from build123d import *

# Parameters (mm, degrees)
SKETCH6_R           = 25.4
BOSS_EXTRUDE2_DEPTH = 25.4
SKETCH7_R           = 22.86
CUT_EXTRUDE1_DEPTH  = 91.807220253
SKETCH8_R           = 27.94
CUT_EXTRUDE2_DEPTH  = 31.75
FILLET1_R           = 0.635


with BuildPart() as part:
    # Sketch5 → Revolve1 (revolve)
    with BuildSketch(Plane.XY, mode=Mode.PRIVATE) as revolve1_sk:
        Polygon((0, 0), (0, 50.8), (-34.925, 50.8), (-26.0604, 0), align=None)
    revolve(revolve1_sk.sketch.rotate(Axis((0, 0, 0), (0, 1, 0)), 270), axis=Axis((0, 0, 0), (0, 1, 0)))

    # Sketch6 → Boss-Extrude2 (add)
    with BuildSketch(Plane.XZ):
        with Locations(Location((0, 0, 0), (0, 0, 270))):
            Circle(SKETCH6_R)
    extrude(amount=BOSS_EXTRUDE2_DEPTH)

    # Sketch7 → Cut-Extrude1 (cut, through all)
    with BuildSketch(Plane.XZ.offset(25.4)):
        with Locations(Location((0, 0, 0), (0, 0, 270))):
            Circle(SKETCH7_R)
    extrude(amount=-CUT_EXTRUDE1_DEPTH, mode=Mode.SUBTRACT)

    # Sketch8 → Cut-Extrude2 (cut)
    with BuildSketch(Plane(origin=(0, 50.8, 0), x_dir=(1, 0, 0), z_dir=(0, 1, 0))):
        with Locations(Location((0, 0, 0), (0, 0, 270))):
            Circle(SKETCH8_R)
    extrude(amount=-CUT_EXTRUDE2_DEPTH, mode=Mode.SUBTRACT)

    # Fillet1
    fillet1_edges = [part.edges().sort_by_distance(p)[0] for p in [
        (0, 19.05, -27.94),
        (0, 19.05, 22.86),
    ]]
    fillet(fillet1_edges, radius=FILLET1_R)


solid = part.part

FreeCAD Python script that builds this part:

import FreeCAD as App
import Part
import Sketcher

V = App.Vector
Q = App.Units.Quantity


def edges_at(feature, points):
    """Names of the edges that pass closest to the given points."""
    edges = feature.Shape.Edges
    near = lambda p: min(range(len(edges)), key=lambda i: edges[i].distToShape(Part.Vertex(*p))[0])
    return sorted({f"Edge{near(p) + 1}" for p in points})


def add_polygon(sketch, points):
    """Adds a closed chain of lines whose ends are joined by coincident constraints."""
    first, n = sketch.GeometryCount, len(points)
    for a, b in zip(points, points[1:] + points[:1]):
        sketch.addGeometry(Part.LineSegment(App.Vector(*a, 0), App.Vector(*b, 0)), False)
    for i in range(n):
        sketch.addConstraint(Sketcher.Constraint("Coincident", first + i, 2, first + (i + 1) % n, 1))

doc = App.newDocument("Part")
body = doc.addObject("PartDesign::Body", "Body")

sketch1 = doc.addObject("Sketcher::SketchObject", "Sketch")
body.addObject(sketch1)
sketch1.AttachmentSupport = (doc.XY_Plane, [""])
sketch1.MapMode = "FlatFace"
add_polygon(sketch1, [(0, 0), (0, 51), (-35, 51), (-26, 0)])
sketch1.addConstraint([
    Sketcher.Constraint("Vertical", 0),
    Sketcher.Constraint("Horizontal", 1),
    Sketcher.Constraint("Horizontal", 3),
    Sketcher.Constraint("Coincident", 3, 2, -1, 1),
    Sketcher.Constraint("DistanceY", 0, 1, 0, 2, Q("2 in")),
    Sketcher.Constraint("DistanceX", 1, 2, 1, 1, Q("1.375 in")),
    Sketcher.Constraint("DistanceX", 3, 1, 3, 2, Q("1.026 in")),
])
revolution = doc.addObject("PartDesign::Revolution", "Revolution")
body.addObject(revolution)
revolution.Profile = sketch1
revolution.ReferenceAxis = (sketch1, ["V_Axis"])
revolution.Angle = 360

sketch2 = doc.addObject("Sketcher::SketchObject", "Sketch001")
body.addObject(sketch2)
sketch2.AttachmentSupport = (doc.XZ_Plane, [""])
sketch2.MapMode = "FlatFace"
sketch2.addGeometry(Part.Circle(V(0, 0, 0), V(0, 0, 1), 25), False)
sketch2.addConstraint([
    Sketcher.Constraint("Coincident", 0, 3, -1, 1),
    Sketcher.Constraint("Diameter", 0, Q("2 in")),
])
pad1 = doc.addObject("PartDesign::Pad", "Pad")
body.addObject(pad1)
pad1.Profile = sketch2
pad1.Length = Q("1 in")

sketch3 = doc.addObject("Sketcher::SketchObject", "Sketch002")
body.addObject(sketch3)
sketch3.AttachmentSupport = (doc.XZ_Plane, [""])
sketch3.MapMode = "FlatFace"
sketch3.AttachmentOffset = App.Placement(V(0, 0, 1 * 25.4), App.Rotation())
sketch3.addGeometry(Part.Circle(V(0, 0, 0), V(0, 0, 1), 23), False)
sketch3.addConstraint([
    Sketcher.Constraint("Coincident", 0, 3, -1, 1),
    Sketcher.Constraint("Diameter", 0, Q("1.8 in")),
])
pocket1 = doc.addObject("PartDesign::Pocket", "Pocket")
body.addObject(pocket1)
pocket1.Profile = sketch3
pocket1.Type = "ThroughAll"

sketch4 = doc.addObject("Sketcher::SketchObject", "Sketch003")
body.addObject(sketch4)
sketch4.AttachmentSupport = (doc.XZ_Plane, [""])
sketch4.MapMode = "FlatFace"
sketch4.AttachmentOffset = App.Placement(V(0, 0, -2 * 25.4), App.Rotation())
sketch4.addGeometry(Part.Circle(V(0, 0, 0), V(0, 0, 1), 28), False)
sketch4.addConstraint([
    Sketcher.Constraint("Coincident", 0, 3, -1, 1),
    Sketcher.Constraint("Diameter", 0, Q("2.2 in")),
])
pocket2 = doc.addObject("PartDesign::Pocket", "Pocket001")
body.addObject(pocket2)
pocket2.Profile = sketch4
pocket2.Length = Q("1.25 in")
pocket2.Reversed = True
doc.recompute()

fillet = doc.addObject("PartDesign::Fillet", "Fillet")
body.addObject(fillet)
fillet.Base = (pocket2, edges_at(pocket2, [(0, 19.05, -27.94), (0, 19.05, 22.86)]))
fillet.Radius = Q("0.025 in")

doc.recompute()
